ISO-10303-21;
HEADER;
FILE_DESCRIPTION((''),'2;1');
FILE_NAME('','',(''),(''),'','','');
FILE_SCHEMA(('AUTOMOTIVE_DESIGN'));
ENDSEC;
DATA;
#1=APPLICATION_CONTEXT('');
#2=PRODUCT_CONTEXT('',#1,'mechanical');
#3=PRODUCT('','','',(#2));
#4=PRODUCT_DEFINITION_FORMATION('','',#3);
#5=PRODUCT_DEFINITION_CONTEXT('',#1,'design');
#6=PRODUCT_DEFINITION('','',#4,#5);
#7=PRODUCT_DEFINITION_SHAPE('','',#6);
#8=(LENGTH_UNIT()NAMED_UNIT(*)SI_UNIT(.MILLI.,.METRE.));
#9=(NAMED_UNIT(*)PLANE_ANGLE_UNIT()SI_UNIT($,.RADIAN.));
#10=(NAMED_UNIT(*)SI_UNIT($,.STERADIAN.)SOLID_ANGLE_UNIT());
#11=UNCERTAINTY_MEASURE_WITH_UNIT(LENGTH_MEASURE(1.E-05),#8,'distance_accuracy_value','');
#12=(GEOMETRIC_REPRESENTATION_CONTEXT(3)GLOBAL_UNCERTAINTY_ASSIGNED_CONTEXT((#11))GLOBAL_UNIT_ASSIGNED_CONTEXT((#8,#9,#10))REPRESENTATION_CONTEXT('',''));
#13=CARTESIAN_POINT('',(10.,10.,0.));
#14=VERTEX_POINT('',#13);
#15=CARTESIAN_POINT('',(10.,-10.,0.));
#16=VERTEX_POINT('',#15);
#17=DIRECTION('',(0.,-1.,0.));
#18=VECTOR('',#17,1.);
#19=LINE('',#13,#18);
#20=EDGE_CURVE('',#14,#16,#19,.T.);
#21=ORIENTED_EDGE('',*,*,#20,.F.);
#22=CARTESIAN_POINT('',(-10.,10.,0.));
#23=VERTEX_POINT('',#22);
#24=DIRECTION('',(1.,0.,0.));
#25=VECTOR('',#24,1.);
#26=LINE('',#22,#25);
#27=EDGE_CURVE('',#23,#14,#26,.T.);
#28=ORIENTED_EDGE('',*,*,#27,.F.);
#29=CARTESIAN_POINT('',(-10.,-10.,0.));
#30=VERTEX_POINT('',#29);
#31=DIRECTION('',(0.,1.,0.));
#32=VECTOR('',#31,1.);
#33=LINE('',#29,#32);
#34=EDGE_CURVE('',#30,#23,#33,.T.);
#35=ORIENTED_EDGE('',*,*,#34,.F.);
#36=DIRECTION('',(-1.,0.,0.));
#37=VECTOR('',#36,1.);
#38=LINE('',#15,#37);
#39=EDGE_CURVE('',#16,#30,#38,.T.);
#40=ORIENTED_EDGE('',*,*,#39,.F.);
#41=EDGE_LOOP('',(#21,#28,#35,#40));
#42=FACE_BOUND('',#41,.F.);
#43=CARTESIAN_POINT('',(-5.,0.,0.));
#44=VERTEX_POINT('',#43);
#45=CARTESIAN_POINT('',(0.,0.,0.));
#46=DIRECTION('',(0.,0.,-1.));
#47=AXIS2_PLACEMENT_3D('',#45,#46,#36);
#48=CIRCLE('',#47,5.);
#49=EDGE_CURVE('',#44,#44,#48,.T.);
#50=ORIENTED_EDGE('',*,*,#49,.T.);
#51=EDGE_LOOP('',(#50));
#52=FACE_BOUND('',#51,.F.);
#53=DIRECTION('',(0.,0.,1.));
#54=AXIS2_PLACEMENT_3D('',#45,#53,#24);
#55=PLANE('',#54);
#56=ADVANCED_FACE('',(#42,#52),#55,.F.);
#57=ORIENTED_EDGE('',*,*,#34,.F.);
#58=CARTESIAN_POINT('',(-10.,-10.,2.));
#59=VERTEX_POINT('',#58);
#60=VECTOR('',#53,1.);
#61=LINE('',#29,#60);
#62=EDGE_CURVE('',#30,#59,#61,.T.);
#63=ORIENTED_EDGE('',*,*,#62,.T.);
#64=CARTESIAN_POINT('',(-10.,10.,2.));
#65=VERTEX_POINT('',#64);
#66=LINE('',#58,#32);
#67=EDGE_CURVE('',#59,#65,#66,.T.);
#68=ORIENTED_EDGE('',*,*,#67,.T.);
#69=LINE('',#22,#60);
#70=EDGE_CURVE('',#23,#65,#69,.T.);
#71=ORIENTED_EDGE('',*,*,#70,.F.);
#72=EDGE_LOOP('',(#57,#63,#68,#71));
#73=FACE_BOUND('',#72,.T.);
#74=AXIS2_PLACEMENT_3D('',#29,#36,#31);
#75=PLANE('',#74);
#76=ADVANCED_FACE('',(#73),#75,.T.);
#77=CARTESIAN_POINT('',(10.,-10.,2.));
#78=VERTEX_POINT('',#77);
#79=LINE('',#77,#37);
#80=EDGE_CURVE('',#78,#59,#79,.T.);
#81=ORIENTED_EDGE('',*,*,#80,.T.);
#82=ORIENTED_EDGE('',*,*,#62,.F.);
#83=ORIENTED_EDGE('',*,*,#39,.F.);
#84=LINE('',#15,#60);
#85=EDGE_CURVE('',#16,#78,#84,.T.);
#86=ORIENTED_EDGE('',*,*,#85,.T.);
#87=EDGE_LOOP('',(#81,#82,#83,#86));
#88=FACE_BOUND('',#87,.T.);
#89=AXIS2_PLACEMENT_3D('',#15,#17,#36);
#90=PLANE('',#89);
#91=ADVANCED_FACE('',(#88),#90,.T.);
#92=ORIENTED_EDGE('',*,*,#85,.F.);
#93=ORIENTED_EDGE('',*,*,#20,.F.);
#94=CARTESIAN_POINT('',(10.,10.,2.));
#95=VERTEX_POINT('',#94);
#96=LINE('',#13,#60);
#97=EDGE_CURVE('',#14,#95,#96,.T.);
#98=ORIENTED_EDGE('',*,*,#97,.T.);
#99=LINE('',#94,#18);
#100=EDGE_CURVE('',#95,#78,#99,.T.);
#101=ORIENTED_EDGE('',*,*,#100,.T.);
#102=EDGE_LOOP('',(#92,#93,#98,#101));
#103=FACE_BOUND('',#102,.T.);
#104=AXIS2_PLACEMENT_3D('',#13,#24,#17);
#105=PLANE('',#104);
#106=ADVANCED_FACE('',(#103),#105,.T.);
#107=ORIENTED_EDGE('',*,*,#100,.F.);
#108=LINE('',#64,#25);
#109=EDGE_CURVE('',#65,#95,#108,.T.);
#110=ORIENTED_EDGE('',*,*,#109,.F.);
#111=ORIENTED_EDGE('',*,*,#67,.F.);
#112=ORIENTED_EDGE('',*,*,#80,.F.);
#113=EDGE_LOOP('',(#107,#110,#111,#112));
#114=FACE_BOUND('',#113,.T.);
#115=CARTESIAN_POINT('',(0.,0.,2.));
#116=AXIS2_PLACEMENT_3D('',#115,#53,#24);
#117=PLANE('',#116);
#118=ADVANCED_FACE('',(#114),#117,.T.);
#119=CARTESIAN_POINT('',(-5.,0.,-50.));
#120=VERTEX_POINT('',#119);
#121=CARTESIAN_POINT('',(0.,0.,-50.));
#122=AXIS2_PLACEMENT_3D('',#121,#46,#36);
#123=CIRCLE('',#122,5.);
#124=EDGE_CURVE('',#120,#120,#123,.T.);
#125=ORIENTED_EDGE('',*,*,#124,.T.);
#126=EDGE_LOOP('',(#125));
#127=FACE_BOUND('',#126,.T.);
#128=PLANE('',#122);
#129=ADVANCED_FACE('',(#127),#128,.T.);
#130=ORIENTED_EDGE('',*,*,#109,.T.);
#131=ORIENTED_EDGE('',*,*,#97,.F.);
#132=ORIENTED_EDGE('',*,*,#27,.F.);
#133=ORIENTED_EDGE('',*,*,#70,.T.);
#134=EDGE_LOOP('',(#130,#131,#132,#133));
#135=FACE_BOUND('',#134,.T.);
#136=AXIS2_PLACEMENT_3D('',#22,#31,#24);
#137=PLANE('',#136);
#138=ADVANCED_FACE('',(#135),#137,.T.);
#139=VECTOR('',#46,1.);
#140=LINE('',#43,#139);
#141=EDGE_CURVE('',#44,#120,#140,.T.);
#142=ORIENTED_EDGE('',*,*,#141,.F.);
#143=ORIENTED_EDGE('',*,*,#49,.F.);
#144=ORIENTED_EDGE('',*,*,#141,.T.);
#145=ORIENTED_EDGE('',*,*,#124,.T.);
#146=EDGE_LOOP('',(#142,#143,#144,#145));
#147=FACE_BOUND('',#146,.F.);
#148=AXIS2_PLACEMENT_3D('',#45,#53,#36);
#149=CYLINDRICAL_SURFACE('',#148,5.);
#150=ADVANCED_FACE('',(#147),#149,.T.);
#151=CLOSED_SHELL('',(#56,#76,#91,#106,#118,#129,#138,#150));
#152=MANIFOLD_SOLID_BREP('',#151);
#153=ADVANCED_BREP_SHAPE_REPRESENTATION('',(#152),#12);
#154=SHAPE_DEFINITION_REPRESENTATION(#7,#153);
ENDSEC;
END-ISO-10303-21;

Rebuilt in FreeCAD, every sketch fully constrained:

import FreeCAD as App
import Part
import Sketcher
from FreeCAD import Vector
Q = App.Units.Quantity

doc = App.newDocument("Part")
body = doc.addObject("PartDesign::Body", "Body")

sketch1 = doc.addObject("Sketcher::SketchObject", "Sketch")
body.addObject(sketch1)
sketch1.AttachmentSupport = (doc.XY_Plane, [""])
sketch1.MapMode = "FlatFace"
sketch1.addGeometry(Part.LineSegment(Vector(10, 10, 0), Vector(-10, 10, 0)), False)
sketch1.addGeometry(Part.LineSegment(Vector(-10, 10, 0), Vector(-10, -10, 0)), False)
sketch1.addGeometry(Part.LineSegment(Vector(-10, -10, 0), Vector(10, -10, 0)), False)
sketch1.addGeometry(Part.LineSegment(Vector(10, -10, 0), Vector(10, 10, 0)), False)
sketch1.addConstraint(Sketcher.Constraint("Coincident", 0, 2, 1, 1))
sketch1.addConstraint(Sketcher.Constraint("Coincident", 1, 2, 2, 1))
sketch1.addConstraint(Sketcher.Constraint("Coincident", 2, 2, 3, 1))
sketch1.addConstraint(Sketcher.Constraint("Coincident", 3, 2, 0, 1))
sketch1.addConstraint(Sketcher.Constraint("Horizontal", 0))
sketch1.addConstraint(Sketcher.Constraint("Vertical", 1))
sketch1.addConstraint(Sketcher.Constraint("Horizontal", 2))
sketch1.addConstraint(Sketcher.Constraint("Vertical", 3))
sketch1.addConstraint(Sketcher.Constraint("Symmetric", 0, 2, 2, 2, -1, 1))
sketch1.addConstraint(Sketcher.Constraint("Equal", 2, 1))
sketch1.addConstraint(Sketcher.Constraint("DistanceX", 0, 2, 0, 1, Q("20 mm")))
pad1 = doc.addObject("PartDesign::Pad", "Pad")
body.addObject(pad1)
pad1.Profile = sketch1
pad1.Length = 2

sketch2 = doc.addObject("Sketcher::SketchObject", "Sketch001")
body.addObject(sketch2)
sketch2.AttachmentSupport = (doc.XY_Plane, [""])
sketch2.MapMode = "FlatFace"
sketch2.addGeometry(Part.Circle(Vector(0, 0, 0), Vector(0, 0, 1), 5), False)
sketch2.addConstraint(Sketcher.Constraint("Coincident", 0, 3, -1, 1))
sketch2.addConstraint(Sketcher.Constraint("Diameter", 0, Q("10 mm")))
pad2 = doc.addObject("PartDesign::Pad", "Pad001")
body.addObject(pad2)
pad2.Profile = sketch2
pad2.Length = 50
pad2.Reversed = True

doc.recompute()
